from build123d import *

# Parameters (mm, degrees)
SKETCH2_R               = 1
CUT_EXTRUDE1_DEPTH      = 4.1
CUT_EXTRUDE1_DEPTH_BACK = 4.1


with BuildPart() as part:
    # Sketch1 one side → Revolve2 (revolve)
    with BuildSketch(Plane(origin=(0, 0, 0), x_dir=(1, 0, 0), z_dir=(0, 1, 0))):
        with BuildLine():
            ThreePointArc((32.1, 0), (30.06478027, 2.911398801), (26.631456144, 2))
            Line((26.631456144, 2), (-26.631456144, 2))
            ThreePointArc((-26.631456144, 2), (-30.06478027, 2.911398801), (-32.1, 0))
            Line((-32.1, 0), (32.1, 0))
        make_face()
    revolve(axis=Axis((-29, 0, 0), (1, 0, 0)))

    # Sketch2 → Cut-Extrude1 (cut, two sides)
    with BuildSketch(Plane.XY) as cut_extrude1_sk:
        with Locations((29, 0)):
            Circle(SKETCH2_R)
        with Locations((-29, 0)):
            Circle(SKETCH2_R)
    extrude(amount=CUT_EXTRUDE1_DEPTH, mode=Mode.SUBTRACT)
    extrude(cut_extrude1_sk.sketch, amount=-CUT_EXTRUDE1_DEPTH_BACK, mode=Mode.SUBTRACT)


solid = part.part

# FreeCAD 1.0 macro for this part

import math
import FreeCAD as App
import Part
import Sketcher
Q = App.Units.Quantity

doc = App.newDocument("Part")
params = doc.addObject("Spreadsheet::Sheet", "Params")
for row, (alias, value) in enumerate([
    ("sketch1_radius", "3.1 mm"),
    ("sketch1_width", "64.2 mm"),
    ("revolution_angle", "360 deg"),
    ("sketch2_diameter", "2 mm"),
], start=1):
    params.set(f"A{row}", alias)
    params.set(f"B{row}", "=" + value)
    params.setAlias(f"B{row}", alias)

body = doc.addObject("PartDesign::Body", "Body")

# Sketch on XZ plane
sketch1 = doc.addObject("Sketcher::SketchObject", "Sketch")
body.addObject(sketch1)
sketch1.AttachmentSupport = (doc.XZ_Plane, [""])
sketch1.MapMode = "FlatFace"
sketch1.addGeometry([
    Part.ArcOfCircle(Part.Circle(App.Vector(29, 0, 0), App.Vector(0, 0, 1), 3.1), math.radians(-140), math.radians(0)),
    Part.LineSegment(App.Vector(26.6, -2, 0), App.Vector(-26.6, -2, 0)),
    Part.ArcOfCircle(Part.Circle(App.Vector(-29, 0, 0), App.Vector(0, 0, 1), 3.1), math.radians(180), math.radians(320)),
    Part.LineSegment(App.Vector(-32.1, 0, 0), App.Vector(32.1, 0, 0)),
], False)
sketch1.addConstraint([
    Sketcher.Constraint("Coincident", 0, 1, 1, 1),
    Sketcher.Constraint("Coincident", 1, 2, 2, 2),
    Sketcher.Constraint("Coincident", 2, 1, 3, 1),
    Sketcher.Constraint("Coincident", 3, 2, 0, 2),
    Sketcher.Constraint("Horizontal", 1),
    Sketcher.Constraint("Horizontal", 3),
    Sketcher.Constraint("Equal", 0, 2),
    Sketcher.Constraint("Symmetric", 0, 3, 2, 3, -1, 1),
    Sketcher.Constraint("PointOnObject", 0, 3, -1),
    Sketcher.Constraint("PointOnObject", 2, 1, -1),
    Sketcher.Constraint("Radius", 0, Q("3.1 mm")),
    Sketcher.Constraint("DistanceX", 3, 1, 3, 2, Q("64.2 mm")),
    Sketcher.Constraint("DistanceY", 0, 1, -1, 1, Q("2 mm")),
])
sketch1.setExpression("Constraints[10]", "Params.sketch1_radius")
sketch1.setExpression("Constraints[11]", "Params.sketch1_width")
revolution = doc.addObject("PartDesign::Revolution", "Revolution")
body.addObject(revolution)
revolution.Profile = sketch1
revolution.ReferenceAxis = (sketch1, ["H_Axis"])
revolution.setExpression("Angle", "Params.revolution_angle")

# Sketch on XY plane
sketch2 = doc.addObject("Sketcher::SketchObject", "Sketch001")
body.addObject(sketch2)
sketch2.AttachmentSupport = (doc.XY_Plane, [""])
sketch2.MapMode = "FlatFace"
sketch2.addGeometry([
    Part.Circle(App.Vector(29, 0, 0), App.Vector(0, 0, 1), 1),
    Part.Circle(App.Vector(-29, 0, 0), App.Vector(0, 0, 1), 1),
], False)
sketch2.addConstraint([
    Sketcher.Constraint("Equal", 0, 1),
    Sketcher.Constraint("Symmetric", 0, 3, 1, 3, -1, 1),
    Sketcher.Constraint("PointOnObject", 0, 3, -1),
    Sketcher.Constraint("Diameter", 0, Q("2 mm")),
    Sketcher.Constraint("DistanceX", -1, 1, 0, 3, Q("29 mm")),
])
sketch2.setExpression("Constraints[3]", "Params.sketch2_diameter")
pocket1 = doc.addObject("PartDesign::Pocket", "Pocket")
body.addObject(pocket1)
pocket1.Profile = sketch2
pocket1.Type = "ThroughAll"
pocket1.Midplane = True

doc.recompute()
